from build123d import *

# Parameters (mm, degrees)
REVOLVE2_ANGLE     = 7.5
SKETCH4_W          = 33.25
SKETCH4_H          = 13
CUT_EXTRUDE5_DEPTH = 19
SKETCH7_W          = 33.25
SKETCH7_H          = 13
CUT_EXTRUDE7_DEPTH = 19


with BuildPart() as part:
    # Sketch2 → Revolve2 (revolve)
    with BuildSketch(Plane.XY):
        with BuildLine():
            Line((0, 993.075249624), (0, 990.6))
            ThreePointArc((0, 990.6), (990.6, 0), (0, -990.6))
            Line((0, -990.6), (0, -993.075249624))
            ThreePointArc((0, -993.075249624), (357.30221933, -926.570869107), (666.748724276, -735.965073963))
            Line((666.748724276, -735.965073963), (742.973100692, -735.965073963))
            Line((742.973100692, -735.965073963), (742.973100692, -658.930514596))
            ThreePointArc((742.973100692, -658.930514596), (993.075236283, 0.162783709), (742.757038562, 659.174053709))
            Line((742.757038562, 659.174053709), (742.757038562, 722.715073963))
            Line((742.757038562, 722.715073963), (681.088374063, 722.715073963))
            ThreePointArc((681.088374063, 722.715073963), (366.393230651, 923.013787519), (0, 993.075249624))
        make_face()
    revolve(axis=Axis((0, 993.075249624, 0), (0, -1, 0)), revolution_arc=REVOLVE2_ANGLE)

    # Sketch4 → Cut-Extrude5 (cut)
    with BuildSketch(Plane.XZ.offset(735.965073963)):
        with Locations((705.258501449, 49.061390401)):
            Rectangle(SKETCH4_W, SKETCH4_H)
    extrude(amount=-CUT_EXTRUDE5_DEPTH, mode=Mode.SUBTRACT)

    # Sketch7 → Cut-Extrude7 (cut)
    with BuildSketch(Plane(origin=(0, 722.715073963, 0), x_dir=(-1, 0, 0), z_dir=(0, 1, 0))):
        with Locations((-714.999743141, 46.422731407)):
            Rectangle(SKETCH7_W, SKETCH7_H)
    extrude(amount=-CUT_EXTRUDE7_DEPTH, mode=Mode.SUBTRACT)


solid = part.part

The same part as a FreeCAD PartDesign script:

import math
import FreeCAD as App
import Part
import Sketcher

V = App.Vector


def add_polygon(sketch, points):
    """Adds a closed chain of lines whose ends are joined by coincident constraints."""
    first, n = sketch.GeometryCount, len(points)
    for a, b in zip(points, points[1:] + points[:1]):
        sketch.addGeometry(Part.LineSegment(App.Vector(*a, 0), App.Vector(*b, 0)), False)
    for i in range(n):
        sketch.addConstraint(Sketcher.Constraint("Coincident", first + i, 2, first + (i + 1) % n, 1))

doc = App.newDocument("Part")
params = doc.addObject("Spreadsheet::Sheet", "Params")
for row, (alias, value) in enumerate([
    ("sketch1_radius", "990.6 mm"),
    ("revolution_angle", "7.5 deg"),
    ("sketch2_height", "13 mm"),
    ("sketch2_width", "33.25 mm"),
    ("pocket1_length", "19 mm"),
    ("sketch3_height", "13 mm"),
    ("sketch3_width", "33.25 mm"),
    ("pocket2_length", "19 mm"),
], start=1):
    params.set(f"A{row}", alias)
    params.set(f"B{row}", "=" + value)
    params.setAlias(f"B{row}", alias)

body = doc.addObject("PartDesign::Body", "Body")

# Sketch on XY plane
sketch1 = body.newObject("Sketcher::SketchObject", "Sketch")
sketch1.AttachmentSupport = (doc.getObject("XY_Plane"), [""])
sketch1.MapMode = "FlatFace"
sketch1.addGeometry([
    Part.LineSegment(V(0, 993.07525, 0), V(0, 990.6, 0)),  # 0
    Part.ArcOfCircle(Part.Circle(V(0, 0, 0), V(0, 0, 1), 990.6), math.radians(-90), math.radians(90)),  # 1
    Part.LineSegment(V(0, -990.6, 0), V(0, -993.07525, 0)),  # 2
    Part.ArcOfCircle(Part.Circle(V(0, 0, 0), V(0, 0, 1), 993.07525), math.radians(-90), math.radians(-47.824946)),  # 3
    Part.LineSegment(V(666.748724, -735.965074, 0), V(742.973101, -735.965074, 0)),  # 4
    Part.LineSegment(V(742.973101, -735.965074, 0), V(742.973101, -658.930515, 0)),  # 5
    Part.ArcOfCircle(Part.Circle(V(0, 0, 0), V(0, 0, 1), 993.07525), math.radians(-41.569287), math.radians(41.58807)),  # 6
    Part.LineSegment(V(742.757039, 659.174054, 0), V(742.757039, 722.715074, 0)),  # 7
    Part.LineSegment(V(742.757039, 722.715074, 0), V(681.088374, 722.715074, 0)),  # 8
    Part.ArcOfCircle(Part.Circle(V(0, 0, 0), V(0, 0, 1), 993.07525), math.radians(46.698482), math.radians(90)),  # 9
], False)
sketch1.addConstraint([
    Sketcher.Constraint("Coincident", 0, 2, 1, 2),
    Sketcher.Constraint("Coincident", 1, 1, 2, 1),
    Sketcher.Constraint("Coincident", 2, 2, 3, 1),
    Sketcher.Constraint("Coincident", 3, 2, 4, 1),
    Sketcher.Constraint("Coincident", 4, 2, 5, 1),
    Sketcher.Constraint("Coincident", 5, 2, 6, 1),
    Sketcher.Constraint("Coincident", 6, 2, 7, 1),
    Sketcher.Constraint("Coincident", 7, 2, 8, 1),
    Sketcher.Constraint("Coincident", 8, 2, 9, 1),
    Sketcher.Constraint("Coincident", 9, 2, 0, 1),
    Sketcher.Constraint("Vertical", 0),
    Sketcher.Constraint("Vertical", 2),
    Sketcher.Constraint("Horizontal", 4),
    Sketcher.Constraint("Vertical", 5),
    Sketcher.Constraint("Vertical", 7),
    Sketcher.Constraint("Horizontal", 8),
    Sketcher.Constraint("Coincident", 1, 3, -1, 1),
    Sketcher.Constraint("Coincident", 3, 3, -1, 1),
    Sketcher.Constraint("Coincident", 6, 3, -1, 1),
    Sketcher.Constraint("Coincident", 9, 3, -1, 1),
    Sketcher.Constraint("Equal", 3, 6),
    Sketcher.Constraint("Equal", 6, 9),
    Sketcher.Constraint("PointOnObject", 0, 2, -2),
    Sketcher.Constraint("PointOnObject", 2, 2, -2),
    Sketcher.Constraint("Radius", 1, 990.6),
    Sketcher.Constraint("Radius", 3, 993.07525),
    Sketcher.Constraint("DistanceY", 5, 1, 5, 2, 77.034559),
    Sketcher.Constraint("DistanceY", 7, 1, 7, 2, 63.54102),
    Sketcher.Constraint("DistanceX", -1, 1, 4, 2, 742.973101),
    Sketcher.Constraint("DistanceX", 8, 2, 8, 1, 61.668664),
])
sketch1.setExpression("Constraints[24]", "Params.sketch1_radius")
revolution = body.newObject("PartDesign::Revolution", "Revolution")
revolution.Profile = sketch1
revolution.ReferenceAxis = (sketch1, ["V_Axis"])
revolution.setExpression("Angle", "Params.revolution_angle")
revolution.Reversed = True

# Sketch on XZ plane
sketch2 = body.newObject("Sketcher::SketchObject", "Sketch001")
sketch2.AttachmentSupport = (doc.getObject("XZ_Plane"), [""])
sketch2.MapMode = "FlatFace"
sketch2.AttachmentOffset = App.Placement(V(0, 0, 735.965074), App.Rotation())
add_polygon(sketch2, [(688.633501, 55.56139), (688.633501, 42.56139), (721.883501, 42.56139), (721.883501, 55.56139)])  # lines 0-3
sketch2.addConstraint([
    Sketcher.Constraint("Vertical", 0),
    Sketcher.Constraint("Horizontal", 1),
    Sketcher.Constraint("Vertical", 2),
    Sketcher.Constraint("Horizontal", 3),
    Sketcher.Constraint("DistanceY", 0, 2, 0, 1, 13.0),
    Sketcher.Constraint("DistanceX", 1, 1, 1, 2, 33.25),
    Sketcher.Constraint("DistanceX", -1, 1, 0, 2, 688.633501),
    Sketcher.Constraint("DistanceY", -1, 1, 0, 2, 42.56139),
])
sketch2.setExpression("Constraints[8]", "Params.sketch2_height")
sketch2.setExpression("Constraints[9]", "Params.sketch2_width")
pocket1 = body.newObject("PartDesign::Pocket", "Pocket")
pocket1.Profile = sketch2
pocket1.setExpression("Length", "Params.pocket1_length")

# Sketch on XZ plane
sketch3 = body.newObject("Sketcher::SketchObject", "Sketch002")
sketch3.AttachmentSupport = (doc.getObject("XZ_Plane"), [""])
sketch3.MapMode = "FlatFace"
sketch3.AttachmentOffset = App.Placement(V(0, 0, -722.715074), App.Rotation())
add_polygon(sketch3, [(731.624743, 52.922731), (731.624743, 39.922731), (698.374743, 39.922731), (698.374743, 52.922731)])  # lines 0-3
sketch3.addConstraint([
    Sketcher.Constraint("Vertical", 0),
    Sketcher.Constraint("Horizontal", 1),
    Sketcher.Constraint("Vertical", 2),
    Sketcher.Constraint("Horizontal", 3),
    Sketcher.Constraint("DistanceY", 0, 2, 0, 1, 13.0),
    Sketcher.Constraint("DistanceX", 1, 2, 1, 1, 33.25),
    Sketcher.Constraint("DistanceY", -1, 1, 0, 2, 39.922731),
    Sketcher.Constraint("DistanceX", -1, 1, 0, 2, 731.624743),
])
sketch3.setExpression("Constraints[8]", "Params.sketch3_height")
sketch3.setExpression("Constraints[9]", "Params.sketch3_width")
pocket2 = body.newObject("PartDesign::Pocket", "Pocket001")
pocket2.Profile = sketch3
pocket2.setExpression("Length", "Params.pocket2_length")
pocket2.Reversed = True

doc.recompute()
